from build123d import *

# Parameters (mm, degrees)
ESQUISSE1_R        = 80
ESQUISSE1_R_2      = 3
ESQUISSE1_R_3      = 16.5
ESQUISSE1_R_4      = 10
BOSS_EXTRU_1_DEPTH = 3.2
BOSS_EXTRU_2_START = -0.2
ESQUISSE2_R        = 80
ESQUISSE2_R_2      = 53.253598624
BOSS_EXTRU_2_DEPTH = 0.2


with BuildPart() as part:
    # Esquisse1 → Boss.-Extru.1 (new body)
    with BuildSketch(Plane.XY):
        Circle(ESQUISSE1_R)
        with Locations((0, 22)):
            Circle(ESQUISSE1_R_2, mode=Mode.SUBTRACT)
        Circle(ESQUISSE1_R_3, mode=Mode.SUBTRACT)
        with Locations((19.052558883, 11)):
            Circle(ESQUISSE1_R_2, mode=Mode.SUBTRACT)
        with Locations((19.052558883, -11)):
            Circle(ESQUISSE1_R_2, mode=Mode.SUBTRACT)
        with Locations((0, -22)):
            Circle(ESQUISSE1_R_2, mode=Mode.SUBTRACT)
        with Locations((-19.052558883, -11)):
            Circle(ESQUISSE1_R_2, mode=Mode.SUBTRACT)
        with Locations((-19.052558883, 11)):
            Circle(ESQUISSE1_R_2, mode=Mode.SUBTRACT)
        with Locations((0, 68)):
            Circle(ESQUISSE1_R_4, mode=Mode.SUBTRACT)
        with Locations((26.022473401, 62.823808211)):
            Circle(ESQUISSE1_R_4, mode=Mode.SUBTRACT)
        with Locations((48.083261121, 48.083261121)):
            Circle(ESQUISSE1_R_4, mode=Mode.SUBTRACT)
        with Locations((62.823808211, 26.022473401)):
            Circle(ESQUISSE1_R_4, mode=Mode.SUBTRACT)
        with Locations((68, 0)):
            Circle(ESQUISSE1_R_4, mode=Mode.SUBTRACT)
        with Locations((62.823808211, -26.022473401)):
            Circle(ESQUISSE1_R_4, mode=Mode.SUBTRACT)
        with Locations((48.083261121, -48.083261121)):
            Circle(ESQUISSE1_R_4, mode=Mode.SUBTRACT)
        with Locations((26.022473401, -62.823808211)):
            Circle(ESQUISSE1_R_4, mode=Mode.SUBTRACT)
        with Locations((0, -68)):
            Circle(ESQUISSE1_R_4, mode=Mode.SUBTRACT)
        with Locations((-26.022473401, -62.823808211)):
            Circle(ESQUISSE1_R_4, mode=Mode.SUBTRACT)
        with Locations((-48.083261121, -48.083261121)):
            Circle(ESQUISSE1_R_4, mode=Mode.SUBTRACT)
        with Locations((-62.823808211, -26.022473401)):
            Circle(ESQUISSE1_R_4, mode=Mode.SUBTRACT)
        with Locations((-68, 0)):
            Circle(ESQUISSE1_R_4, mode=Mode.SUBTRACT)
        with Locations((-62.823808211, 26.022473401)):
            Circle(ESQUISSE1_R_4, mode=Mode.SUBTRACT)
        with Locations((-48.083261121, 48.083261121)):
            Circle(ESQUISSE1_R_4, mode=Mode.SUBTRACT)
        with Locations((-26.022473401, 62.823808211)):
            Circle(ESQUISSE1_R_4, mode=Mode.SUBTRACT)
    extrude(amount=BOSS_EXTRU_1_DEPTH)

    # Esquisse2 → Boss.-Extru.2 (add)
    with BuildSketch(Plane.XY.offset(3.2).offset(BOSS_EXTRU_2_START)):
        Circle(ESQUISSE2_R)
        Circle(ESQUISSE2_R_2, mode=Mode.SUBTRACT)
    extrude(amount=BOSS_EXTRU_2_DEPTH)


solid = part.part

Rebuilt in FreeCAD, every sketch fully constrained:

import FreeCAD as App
import Part
import Sketcher
from FreeCAD import Vector

doc = App.newDocument("Part")
body = doc.addObject("PartDesign::Body", "Body")

# Sketch on XY plane
sketch1 = doc.addObject("Sketcher::SketchObject", "Sketch")
body.addObject(sketch1)
sketch1.AttachmentSupport = (doc.XY_Plane, [""])
sketch1.MapMode = "FlatFace"
sketch1.addGeometry(Part.Circle(Vector(0, 0, 0), Vector(0, 0, 1), 80), False)
sketch1.addGeometry(Part.Circle(Vector(-48.1, -48.1, 0), Vector(0, 0, 1), 10), False)
sketch1.addGeometry(Part.Circle(Vector(-26, -62.8, 0), Vector(0, 0, 1), 10), False)
sketch1.addGeometry(Part.Circle(Vector(-62.8, -26, 0), Vector(0, 0, 1), 10), False)
sketch1.addGeometry(Part.Circle(Vector(-19.1, -11, 0), Vector(0, 0, 1), 3), False)
sketch1.addGeometry(Part.Circle(Vector(0, -68, 0), Vector(0, 0, 1), 10), False)
sketch1.addGeometry(Part.Circle(Vector(26, -62.8, 0), Vector(0, 0, 1), 10), False)
sketch1.addGeometry(Part.Circle(Vector(48.1, -48.1, 0), Vector(0, 0, 1), 10), False)
sketch1.addGeometry(Part.Circle(Vector(0, -22, 0), Vector(0, 0, 1), 3), False)
sketch1.addGeometry(Part.Circle(Vector(19.1, -11, 0), Vector(0, 0, 1), 3), False)
sketch1.addGeometry(Part.Circle(Vector(62.8, -26, 0), Vector(0, 0, 1), 10), False)
sketch1.addGeometry(Part.Circle(Vector(-68, 0, 0), Vector(0, 0, 1), 10), False)
sketch1.addGeometry(Part.Circle(Vector(-62.8, 26, 0), Vector(0, 0, 1), 10), False)
sketch1.addGeometry(Part.Circle(Vector(-19.1, 11, 0), Vector(0, 0, 1), 3), False)
sketch1.addGeometry(Part.Circle(Vector(-48.1, 48.1, 0), Vector(0, 0, 1), 10), False)
sketch1.addGeometry(Part.Circle(Vector(-26, 62.8, 0), Vector(0, 0, 1), 10), False)
sketch1.addGeometry(Part.Circle(Vector(0, 0, 0), Vector(0, 0, 1), 16.5), False)
sketch1.addGeometry(Part.Circle(Vector(19.1, 11, 0), Vector(0, 0, 1), 3), False)
sketch1.addGeometry(Part.Circle(Vector(0, 22, 0), Vector(0, 0, 1), 3), False)
sketch1.addGeometry(Part.Circle(Vector(68, 0, 0), Vector(0, 0, 1), 10), False)
sketch1.addGeometry(Part.Circle(Vector(62.8, 26, 0), Vector(0, 0, 1), 10), False)
sketch1.addGeometry(Part.Circle(Vector(0, 68, 0), Vector(0, 0, 1), 10), False)
sketch1.addGeometry(Part.Circle(Vector(26, 62.8, 0), Vector(0, 0, 1), 10), False)
sketch1.addGeometry(Part.Circle(Vector(48.1, 48.1, 0), Vector(0, 0, 1), 10), False)
sketch1.addConstraint(Sketcher.Constraint("Coincident", 0, 3, -1, 1))
sketch1.addConstraint(Sketcher.Constraint("Coincident", 16, 3, -1, 1))
sketch1.addConstraint(Sketcher.Constraint("Equal", 1, 2))
sketch1.addConstraint(Sketcher.Constraint("Equal", 2, 3))
sketch1.addConstraint(Sketcher.Constraint("Equal", 3, 5))
sketch1.addConstraint(Sketcher.Constraint("Equal", 5, 6))
sketch1.addConstraint(Sketcher.Constraint("Equal", 6, 7))
sketch1.addConstraint(Sketcher.Constraint("Equal", 4, 8))
sketch1.addConstraint(Sketcher.Constraint("Equal", 8, 9))
sketch1.addConstraint(Sketcher.Constraint("Equal", 7, 10))
sketch1.addConstraint(Sketcher.Constraint("Equal", 10, 11))
sketch1.addConstraint(Sketcher.Constraint("Equal", 11, 12))
sketch1.addConstraint(Sketcher.Constraint("Equal", 9, 13))
sketch1.addConstraint(Sketcher.Constraint("Equal", 12, 14))
sketch1.addConstraint(Sketcher.Constraint("Equal", 14, 15))
sketch1.addConstraint(Sketcher.Constraint("Equal", 13, 17))
sketch1.addConstraint(Sketcher.Constraint("Equal", 17, 18))
sketch1.addConstraint(Sketcher.Constraint("Equal", 15, 19))
sketch1.addConstraint(Sketcher.Constraint("Equal", 19, 20))
sketch1.addConstraint(Sketcher.Constraint("Equal", 20, 21))
sketch1.addConstraint(Sketcher.Constraint("Equal", 21, 22))
sketch1.addConstraint(Sketcher.Constraint("Equal", 22, 23))
sketch1.addConstraint(Sketcher.Constraint("Symmetric", 10, 3, 12, 3, -1, 1))
sketch1.addConstraint(Sketcher.Constraint("Symmetric", 9, 3, 13, 3, -1, 1))
sketch1.addConstraint(Sketcher.Constraint("Symmetric", 7, 3, 14, 3, -1, 1))
sketch1.addConstraint(Sketcher.Constraint("Symmetric", 6, 3, 15, 3, -1, 1))
sketch1.addConstraint(Sketcher.Constraint("Symmetric", 4, 3, 17, 3, -1, 1))
sketch1.addConstraint(Sketcher.Constraint("Symmetric", 8, 3, 18, 3, -1, 1))
sketch1.addConstraint(Sketcher.Constraint("Symmetric", 11, 3, 19, 3, -1, 1))
sketch1.addConstraint(Sketcher.Constraint("Symmetric", 3, 3, 20, 3, -1, 1))
sketch1.addConstraint(Sketcher.Constraint("Symmetric", 5, 3, 21, 3, -1, 1))
sketch1.addConstraint(Sketcher.Constraint("Symmetric", 2, 3, 22, 3, -1, 1))
sketch1.addConstraint(Sketcher.Constraint("Symmetric", 1, 3, 23, 3, -1, 1))
sketch1.addConstraint(Sketcher.Constraint("Symmetric", 2, 3, 6, 3, -2))
sketch1.addConstraint(Sketcher.Constraint("Symmetric", 1, 3, 7, 3, -2))
sketch1.addConstraint(Sketcher.Constraint("Symmetric", 4, 3, 9, 3, -2))
sketch1.addConstraint(Sketcher.Constraint("Symmetric", 3, 3, 10, 3, -2))
sketch1.addConstraint(Sketcher.Constraint("PointOnObject", 5, 3, -2))
sketch1.addConstraint(Sketcher.Constraint("PointOnObject", 8, 3, -2))
sketch1.addConstraint(Sketcher.Constraint("PointOnObject", 11, 3, -1))
sketch1.addConstraint(Sketcher.Constraint("Diameter", 0, 160.0))
sketch1.addConstraint(Sketcher.Constraint("Diameter", 1, 20.0))
sketch1.addConstraint(Sketcher.Constraint("Diameter", 4, 6.0))
sketch1.addConstraint(Sketcher.Constraint("Diameter", 16, 33.0))
sketch1.addConstraint(Sketcher.Constraint("DistanceY", 4, 3, -1, 1, 11.0))
sketch1.addConstraint(Sketcher.Constraint("DistanceY", 5, 3, -1, 1, 68.0))
sketch1.addConstraint(Sketcher.Constraint("DistanceY", 8, 3, -1, 1, 22.0))
sketch1.addConstraint(Sketcher.Constraint("DistanceX", 11, 3, -1, 1, 68.0))
sketch1.addConstraint(Sketcher.Constraint("DistanceX", 1, 3, -1, 1, 48.083261))
sketch1.addConstraint(Sketcher.Constraint("DistanceY", 1, 3, -1, 1, 48.083261))
sketch1.addConstraint(Sketcher.Constraint("DistanceY", 2, 3, -1, 1, 62.823808))
sketch1.addConstraint(Sketcher.Constraint("DistanceX", 3, 3, -1, 1, 62.823808))
sketch1.addConstraint(Sketcher.Constraint("DistanceX", 4, 3, -1, 1, 19.052559))
sketch1.addConstraint(Sketcher.Constraint("DistanceX", 2, 3, -1, 1, 26.022473))
sketch1.addConstraint(Sketcher.Constraint("DistanceY", 3, 3, -1, 1, 26.022473))
pad1 = doc.addObject("PartDesign::Pad", "Pad")
body.addObject(pad1)
pad1.Profile = sketch1
pad1.Length = 3.2

# Sketch on XY plane
sketch2 = doc.addObject("Sketcher::SketchObject", "Sketch001")
body.addObject(sketch2)
sketch2.AttachmentSupport = (doc.XY_Plane, [""])
sketch2.MapMode = "FlatFace"
sketch2.AttachmentOffset = App.Placement(Vector(0, 0, 3), App.Rotation())
sketch2.addGeometry(Part.Circle(Vector(0, 0, 0), Vector(0, 0, 1), 80), False)
sketch2.addGeometry(Part.Circle(Vector(0, 0, 0), Vector(0, 0, 1), 53), False)
sketch2.addConstraint(Sketcher.Constraint("Coincident", 0, 3, -1, 1))
sketch2.addConstraint(Sketcher.Constraint("Coincident", 1, 3, -1, 1))
sketch2.addConstraint(Sketcher.Constraint("Diameter", 0, 160.0))
sketch2.addConstraint(Sketcher.Constraint("Diameter", 1, 106.507197))
pad2 = doc.addObject("PartDesign::Pad", "Pad001")
body.addObject(pad2)
pad2.Profile = sketch2
pad2.Length = 0.2

doc.recompute()
